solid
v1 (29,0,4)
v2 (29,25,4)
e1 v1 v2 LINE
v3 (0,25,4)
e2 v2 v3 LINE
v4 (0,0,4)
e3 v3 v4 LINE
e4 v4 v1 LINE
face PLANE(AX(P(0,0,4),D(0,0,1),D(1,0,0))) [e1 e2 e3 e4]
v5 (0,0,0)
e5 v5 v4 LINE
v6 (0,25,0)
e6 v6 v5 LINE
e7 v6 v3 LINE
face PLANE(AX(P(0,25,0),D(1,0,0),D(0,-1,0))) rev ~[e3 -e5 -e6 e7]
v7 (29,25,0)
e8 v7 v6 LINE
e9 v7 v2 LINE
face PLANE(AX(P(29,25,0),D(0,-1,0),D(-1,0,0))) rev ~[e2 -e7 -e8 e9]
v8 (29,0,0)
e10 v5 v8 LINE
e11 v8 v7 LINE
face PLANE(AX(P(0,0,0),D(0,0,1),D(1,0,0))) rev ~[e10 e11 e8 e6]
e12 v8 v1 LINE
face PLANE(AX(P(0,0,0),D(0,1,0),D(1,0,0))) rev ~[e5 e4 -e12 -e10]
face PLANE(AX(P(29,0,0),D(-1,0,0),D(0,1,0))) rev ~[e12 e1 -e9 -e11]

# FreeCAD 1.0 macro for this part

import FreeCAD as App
import Part
import Sketcher

V = App.Vector
Q = App.Units.Quantity


def add_polygon(sketch, points):
    """Adds a closed chain of lines whose ends are joined by coincident constraints."""
    first, n = sketch.GeometryCount, len(points)
    for a, b in zip(points, points[1:] + points[:1]):
        sketch.addGeometry(Part.LineSegment(App.Vector(*a, 0), App.Vector(*b, 0)), False)
    for i in range(n):
        sketch.addConstraint(Sketcher.Constraint("Coincident", first + i, 2, first + (i + 1) % n, 1))

doc = App.newDocument("Part")
body = doc.addObject("PartDesign::Body", "Body")

sketch1 = body.newObject("Sketcher::SketchObject", "Sketch")
sketch1.AttachmentSupport = (doc.getObject("XY_Plane"), [""])
sketch1.MapMode = "FlatFace"
add_polygon(sketch1, [(0, 25), (0, 0), (29, 0), (29, 25)])
sketch1.addConstraint([
    Sketcher.Constraint("Vertical", 0),
    Sketcher.Constraint("Horizontal", 1),
    Sketcher.Constraint("Vertical", 2),
    Sketcher.Constraint("Horizontal", 3),
    Sketcher.Constraint("Coincident", 0, 2, -1, 1),
    Sketcher.Constraint("DistanceX", 1, 1, 1, 2, Q("29 mm")),
    Sketcher.Constraint("DistanceY", 0, 2, 0, 1, Q("25 mm")),
])
pad1 = body.newObject("PartDesign::Pad", "Pad")
pad1.Profile = sketch1
pad1.Length = 4

doc.recompute()
